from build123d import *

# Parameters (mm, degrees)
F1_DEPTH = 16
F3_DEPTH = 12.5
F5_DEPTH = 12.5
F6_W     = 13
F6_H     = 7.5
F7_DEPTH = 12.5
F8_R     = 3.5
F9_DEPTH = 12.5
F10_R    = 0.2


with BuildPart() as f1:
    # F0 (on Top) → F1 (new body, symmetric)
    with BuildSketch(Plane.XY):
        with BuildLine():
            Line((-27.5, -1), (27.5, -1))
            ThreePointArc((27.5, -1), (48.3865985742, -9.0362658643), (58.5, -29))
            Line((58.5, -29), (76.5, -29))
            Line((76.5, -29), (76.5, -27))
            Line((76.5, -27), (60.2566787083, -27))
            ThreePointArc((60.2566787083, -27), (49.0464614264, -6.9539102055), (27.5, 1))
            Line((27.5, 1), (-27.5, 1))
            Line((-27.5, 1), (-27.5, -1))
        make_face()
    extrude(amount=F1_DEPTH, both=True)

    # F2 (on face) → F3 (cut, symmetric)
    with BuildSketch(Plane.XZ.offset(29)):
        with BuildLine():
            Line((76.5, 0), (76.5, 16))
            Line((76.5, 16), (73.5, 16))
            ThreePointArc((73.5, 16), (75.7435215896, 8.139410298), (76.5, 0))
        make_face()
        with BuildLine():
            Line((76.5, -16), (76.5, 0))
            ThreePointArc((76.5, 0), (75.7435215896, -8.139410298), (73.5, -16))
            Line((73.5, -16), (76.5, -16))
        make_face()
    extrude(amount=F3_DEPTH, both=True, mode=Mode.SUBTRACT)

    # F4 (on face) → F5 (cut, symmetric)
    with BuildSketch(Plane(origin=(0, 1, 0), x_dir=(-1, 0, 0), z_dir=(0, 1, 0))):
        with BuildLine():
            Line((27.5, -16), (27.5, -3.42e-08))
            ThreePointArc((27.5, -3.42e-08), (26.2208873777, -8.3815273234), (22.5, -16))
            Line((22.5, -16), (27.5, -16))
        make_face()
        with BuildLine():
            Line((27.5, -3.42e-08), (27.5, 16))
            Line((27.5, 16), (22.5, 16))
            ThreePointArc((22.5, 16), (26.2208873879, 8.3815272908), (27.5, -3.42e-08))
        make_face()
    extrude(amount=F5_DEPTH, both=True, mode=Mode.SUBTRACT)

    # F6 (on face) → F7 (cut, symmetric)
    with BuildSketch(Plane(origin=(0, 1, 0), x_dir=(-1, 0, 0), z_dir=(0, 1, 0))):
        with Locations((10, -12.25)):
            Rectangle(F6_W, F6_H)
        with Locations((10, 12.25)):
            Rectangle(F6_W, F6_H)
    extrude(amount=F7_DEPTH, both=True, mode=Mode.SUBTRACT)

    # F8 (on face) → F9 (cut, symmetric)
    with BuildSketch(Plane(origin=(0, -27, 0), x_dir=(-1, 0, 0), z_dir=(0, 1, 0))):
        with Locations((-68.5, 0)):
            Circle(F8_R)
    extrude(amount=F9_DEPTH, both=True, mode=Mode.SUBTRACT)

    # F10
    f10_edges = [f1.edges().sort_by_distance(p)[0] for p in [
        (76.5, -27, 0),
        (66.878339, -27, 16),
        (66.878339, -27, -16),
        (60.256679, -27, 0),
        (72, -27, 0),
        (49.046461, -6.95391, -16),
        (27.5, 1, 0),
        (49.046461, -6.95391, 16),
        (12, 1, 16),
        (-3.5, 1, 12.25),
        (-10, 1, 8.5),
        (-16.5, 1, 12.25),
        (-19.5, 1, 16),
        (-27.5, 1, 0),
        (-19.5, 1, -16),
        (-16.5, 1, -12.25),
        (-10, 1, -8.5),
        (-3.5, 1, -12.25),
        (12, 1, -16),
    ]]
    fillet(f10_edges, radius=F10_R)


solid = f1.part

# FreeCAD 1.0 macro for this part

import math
import FreeCAD as App
import Part
import Sketcher
from FreeCAD import Vector
Q = App.Units.Quantity


def edges_at(feature, points):
    """Names of the edges that pass closest to the given points."""
    edges = feature.Shape.Edges
    near = lambda p: min(range(len(edges)), key=lambda i: edges[i].distToShape(Part.Vertex(*p))[0])
    return sorted({f"Edge{near(p) + 1}" for p in points})


def add_polygon(sketch, points):
    """Adds a closed chain of lines whose ends are joined by coincident constraints."""
    first, n = sketch.GeometryCount, len(points)
    for a, b in zip(points, points[1:] + points[:1]):
        sketch.addGeometry(Part.LineSegment(App.Vector(*a, 0), App.Vector(*b, 0)), False)
    for i in range(n):
        sketch.addConstraint(Sketcher.Constraint("Coincident", first + i, 2, first + (i + 1) % n, 1))

doc = App.newDocument("Part")
params = doc.addObject("Spreadsheet::Sheet", "Params")
for row, (alias, value) in enumerate([
    ("sketch1_width", "55 mm"),
    ("sketch1_width2", "18 mm"),
    ("sketch1_height", "2 mm"),
    ("sketch1_width3", "31 mm"),
    ("pad1_length", "32 mm"),
    ("sketch2_width", "3 mm"),
    ("sketch2_height", "16 mm"),
    ("pocket1_length", "25 mm"),
    ("sketch3_radius", "28.1 mm"),
    ("sketch3_width", "5 mm"),
    ("pocket2_length", "25 mm"),
    ("sketch4_width", "13 mm"),
    ("sketch4_height", "7.5 mm"),
    ("pocket3_length", "25 mm"),
    ("sketch5_diameter", "7 mm"),
    ("pocket4_length", "25 mm"),
    ("fillet_radius", "0.2 mm"),
], start=1):
    params.set(f"A{row}", alias)
    params.set(f"B{row}", "=" + value)
    params.setAlias(f"B{row}", alias)

body = doc.addObject("PartDesign::Body", "Body")

# Sketch on XY plane
sketch1 = doc.addObject("Sketcher::SketchObject", "Sketch")
body.addObject(sketch1)
sketch1.AttachmentSupport = (doc.XY_Plane, [""])
sketch1.MapMode = "FlatFace"
sketch1.addGeometry(Part.LineSegment(Vector(-27.5, -1, 0), Vector(27.5, -1, 0)), False)
sketch1.addGeometry(Part.ArcOfCircle(Part.Circle(Vector(27.5, -32.2, 0), Vector(0, 0, 1), 31.2), math.radians(6), math.radians(90)), False)
sketch1.addGeometry(Part.LineSegment(Vector(58.5, -29, 0), Vector(76.5, -29, 0)), False)
sketch1.addGeometry(Part.LineSegment(Vector(76.5, -29, 0), Vector(76.5, -27, 0)), False)
sketch1.addGeometry(Part.LineSegment(Vector(76.5, -27, 0), Vector(60.3, -27, 0)), False)
sketch1.addGeometry(Part.ArcOfCircle(Part.Circle(Vector(27.5, -32.2, 0), Vector(0, 0, 1), 33.2), math.radians(9), math.radians(90)), False)
sketch1.addGeometry(Part.LineSegment(Vector(27.5, 1, 0), Vector(-27.5, 1, 0)), False)
sketch1.addGeometry(Part.LineSegment(Vector(-27.5, 1, 0), Vector(-27.5, -1, 0)), False)
sketch1.addConstraint(Sketcher.Constraint("Tangent", 0, 2, 1, 2))
sketch1.addConstraint(Sketcher.Constraint("Coincident", 1, 1, 2, 1))
sketch1.addConstraint(Sketcher.Constraint("Coincident", 2, 2, 3, 1))
sketch1.addConstraint(Sketcher.Constraint("Coincident", 3, 2, 4, 1))
sketch1.addConstraint(Sketcher.Constraint("Coincident", 4, 2, 5, 1))
sketch1.addConstraint(Sketcher.Constraint("Tangent", 5, 2, 6, 1))
sketch1.addConstraint(Sketcher.Constraint("Coincident", 6, 2, 7, 1))
sketch1.addConstraint(Sketcher.Constraint("Coincident", 7, 2, 0, 1))
sketch1.addConstraint(Sketcher.Constraint("Horizontal", 0))
sketch1.addConstraint(Sketcher.Constraint("Horizontal", 2))
sketch1.addConstraint(Sketcher.Constraint("Vertical", 3))
sketch1.addConstraint(Sketcher.Constraint("Horizontal", 4))
sketch1.addConstraint(Sketcher.Constraint("Horizontal", 6))
sketch1.addConstraint(Sketcher.Constraint("Vertical", 7))
sketch1.addConstraint(Sketcher.Constraint("Coincident", 5, 3, 1, 3))
sketch1.addConstraint(Sketcher.Constraint("Symmetric", 0, 2, 6, 2, -1, 1))
sketch1.addConstraint(Sketcher.Constraint("Equal", 3, 7))
sketch1.addConstraint(Sketcher.Constraint("DistanceX", 0, 1, 0, 2, Q("55 mm")))
sketch1.addConstraint(Sketcher.Constraint("DistanceX", 2, 1, 2, 2, Q("18 mm")))
sketch1.addConstraint(Sketcher.Constraint("DistanceY", 3, 1, 3, 2, Q("2 mm")))
sketch1.addConstraint(Sketcher.Constraint("DistanceY", 1, 1, -1, 1, Q("29 mm")))
sketch1.addConstraint(Sketcher.Constraint("DistanceX", 1, 3, 1, 1, Q("31 mm")))
sketch1.setExpression("Constraints[17]", "Params.sketch1_width")
sketch1.setExpression("Constraints[18]", "Params.sketch1_width2")
sketch1.setExpression("Constraints[19]", "Params.sketch1_height")
sketch1.setExpression("Constraints[21]", "Params.sketch1_width3")
pad1 = doc.addObject("PartDesign::Pad", "Pad")
body.addObject(pad1)
pad1.Profile = sketch1
pad1.setExpression("Length", "Params.pad1_length")
pad1.Midplane = True

# Sketch on XZ plane
sketch2 = doc.addObject("Sketcher::SketchObject", "Sketch001")
body.addObject(sketch2)
sketch2.AttachmentSupport = (doc.XZ_Plane, [""])
sketch2.MapMode = "FlatFace"
sketch2.AttachmentOffset = App.Placement(Vector(0, 0, 29), App.Rotation())
sketch2.addGeometry(Part.LineSegment(Vector(76.5, 0, 0), Vector(76.5, 16, 0)), False)
sketch2.addGeometry(Part.LineSegment(Vector(76.5, 16, 0), Vector(73.5, 16, 0)), False)
sketch2.addGeometry(Part.ArcOfCircle(Part.Circle(Vector(32.3, 0, 0), Vector(0, 0, 1), 44.2), math.radians(0), math.radians(21)), False)
sketch2.addGeometry(Part.LineSegment(Vector(76.5, -16, 0), Vector(76.5, 0, 0)), False)
sketch2.addGeometry(Part.ArcOfCircle(Part.Circle(Vector(32.3, 0, 0), Vector(0, 0, 1), 44.2), math.radians(-21), math.radians(0)), False)
sketch2.addGeometry(Part.LineSegment(Vector(73.5, -16, 0), Vector(76.5, -16, 0)), False)
sketch2.addConstraint(Sketcher.Constraint("Coincident", 0, 2, 1, 1))
sketch2.addConstraint(Sketcher.Constraint("Coincident", 1, 2, 2, 2))
sketch2.addConstraint(Sketcher.Constraint("Tangent", 2, 1, 0, 1))
sketch2.addConstraint(Sketcher.Constraint("Tangent", 3, 2, 4, 2))
sketch2.addConstraint(Sketcher.Constraint("Coincident", 4, 1, 5, 1))
sketch2.addConstraint(Sketcher.Constraint("Coincident", 5, 2, 3, 1))
sketch2.addConstraint(Sketcher.Constraint("Vertical", 0))
sketch2.addConstraint(Sketcher.Constraint("Horizontal", 1))
sketch2.addConstraint(Sketcher.Constraint("Vertical", 3))
sketch2.addConstraint(Sketcher.Constraint("Horizontal", 5))
sketch2.addConstraint(Sketcher.Constraint("Coincident", 4, 3, 2, 3))
sketch2.addConstraint(Sketcher.Constraint("Equal", 2, 4))
sketch2.addConstraint(Sketcher.Constraint("Symmetric", 1, 2, 4, 1, -1))
sketch2.addConstraint(Sketcher.Constraint("DistanceX", 1, 2, 1, 1, Q("3 mm")))
sketch2.addConstraint(Sketcher.Constraint("DistanceY", 0, 1, 0, 2, Q("16 mm")))
sketch2.addConstraint(Sketcher.Constraint("DistanceX", -1, 1, 0, 2, Q("76.5 mm")))
sketch2.setExpression("Constraints[13]", "Params.sketch2_width")
sketch2.setExpression("Constraints[14]", "Params.sketch2_height")
pocket1 = doc.addObject("PartDesign::Pocket", "Pocket")
body.addObject(pocket1)
pocket1.Profile = sketch2
pocket1.setExpression("Length", "Params.pocket1_length")
pocket1.Midplane = True

# Sketch on XZ plane
sketch3 = doc.addObject("Sketcher::SketchObject", "Sketch002")
body.addObject(sketch3)
sketch3.AttachmentSupport = (doc.XZ_Plane, [""])
sketch3.MapMode = "FlatFace"
sketch3.AttachmentOffset = App.Placement(Vector(0, 0, -1), App.Rotation())
sketch3.addGeometry(Part.LineSegment(Vector(-28, -16, 0), Vector(-28, 0, 0)), False)
sketch3.addGeometry(Part.ArcOfCircle(Part.Circle(Vector(1, 0, 0), Vector(0, 0, 1), 28), math.radians(-180), math.radians(-145)), False)
sketch3.addGeometry(Part.LineSegment(Vector(-22, -16, 0), Vector(-28, -16, 0)), False)
sketch3.addGeometry(Part.LineSegment(Vector(-28, 0, 0), Vector(-28, 16, 0)), False)
sketch3.addGeometry(Part.LineSegment(Vector(-28, 16, 0), Vector(-22, 16, 0)), False)
sketch3.addGeometry(Part.ArcOfCircle(Part.Circle(Vector(1, 0, 0), Vector(0, 0, 1), 28), math.radians(145), math.radians(180)), False)
sketch3.addConstraint(Sketcher.Constraint("Tangent", 0, 2, 1, 1))
sketch3.addConstraint(Sketcher.Constraint("Coincident", 1, 2, 2, 1))
sketch3.addConstraint(Sketcher.Constraint("Coincident", 2, 2, 0, 1))
sketch3.addConstraint(Sketcher.Constraint("Coincident", 3, 2, 4, 1))
sketch3.addConstraint(Sketcher.Constraint("Coincident", 4, 2, 5, 1))
sketch3.addConstraint(Sketcher.Constraint("Tangent", 5, 2, 3, 1))
sketch3.addConstraint(Sketcher.Constraint("Vertical", 0))
sketch3.addConstraint(Sketcher.Constraint("Horizontal", 2))
sketch3.addConstraint(Sketcher.Constraint("Vertical", 3))
sketch3.addConstraint(Sketcher.Constraint("Horizontal", 4))
sketch3.addConstraint(Sketcher.Constraint("Coincident", 5, 3, 1, 3))
sketch3.addConstraint(Sketcher.Constraint("Equal", 1, 5))
sketch3.addConstraint(Sketcher.Constraint("Symmetric", 1, 2, 4, 2, -1))
sketch3.addConstraint(Sketcher.Constraint("Radius", 1, Q("28.1 mm")))
sketch3.addConstraint(Sketcher.Constraint("DistanceX", 2, 2, 2, 1, Q("5 mm")))
sketch3.addConstraint(Sketcher.Constraint("DistanceX", -1, 1, 1, 3, Q("0.6 mm")))
sketch3.setExpression("Constraints[13]", "Params.sketch3_radius")
sketch3.setExpression("Constraints[14]", "Params.sketch3_width")
pocket2 = doc.addObject("PartDesign::Pocket", "Pocket001")
body.addObject(pocket2)
pocket2.Profile = sketch3
pocket2.setExpression("Length", "Params.pocket2_length")
pocket2.Midplane = True

# Sketch on XZ plane
sketch4 = doc.addObject("Sketcher::SketchObject", "Sketch003")
body.addObject(sketch4)
sketch4.AttachmentSupport = (doc.XZ_Plane, [""])
sketch4.MapMode = "FlatFace"
sketch4.AttachmentOffset = App.Placement(Vector(0, 0, -1), App.Rotation())
add_polygon(sketch4, [(-4, -8), (-4, -16), (-16, -16), (-16, -8)])  # lines 0-3
add_polygon(sketch4, [(-4, 16), (-4, 8), (-16, 8), (-16, 16)])  # lines 4-7
sketch4.addConstraint(Sketcher.Constraint("Vertical", 0))
sketch4.addConstraint(Sketcher.Constraint("Horizontal", 1))
sketch4.addConstraint(Sketcher.Constraint("Vertical", 2))
sketch4.addConstraint(Sketcher.Constraint("Horizontal", 3))
sketch4.addConstraint(Sketcher.Constraint("Vertical", 4))
sketch4.addConstraint(Sketcher.Constraint("Horizontal", 5))
sketch4.addConstraint(Sketcher.Constraint("Vertical", 6))
sketch4.addConstraint(Sketcher.Constraint("Horizontal", 7))
sketch4.addConstraint(Sketcher.Constraint("Symmetric", 3, 2, 4, 2, -1))
sketch4.addConstraint(Sketcher.Constraint("Symmetric", 1, 2, 6, 2, -1))
sketch4.addConstraint(Sketcher.Constraint("DistanceX", 1, 2, 1, 1, Q("13 mm")))
sketch4.addConstraint(Sketcher.Constraint("DistanceY", 0, 2, 0, 1, Q("7.5 mm")))
sketch4.addConstraint(Sketcher.Constraint("DistanceY", 0, 2, -1, 1, Q("16 mm")))
sketch4.addConstraint(Sketcher.Constraint("DistanceX", 0, 2, -1, 1, Q("3.5 mm")))
sketch4.setExpression("Constraints[18]", "Params.sketch4_width")
sketch4.setExpression("Constraints[19]", "Params.sketch4_height")
pocket3 = doc.addObject("PartDesign::Pocket", "Pocket002")
body.addObject(pocket3)
pocket3.Profile = sketch4
pocket3.setExpression("Length", "Params.pocket3_length")
pocket3.Midplane = True

# Sketch on XZ plane
sketch5 = doc.addObject("Sketcher::SketchObject", "Sketch004")
body.addObject(sketch5)
sketch5.AttachmentSupport = (doc.XZ_Plane, [""])
sketch5.MapMode = "FlatFace"
sketch5.AttachmentOffset = App.Placement(Vector(0, 0, 27), App.Rotation())
sketch5.addGeometry(Part.Circle(Vector(68.5, 0, 0), Vector(0, 0, 1), 3.5), False)
sketch5.addConstraint(Sketcher.Constraint("PointOnObject", 0, 3, -1))
sketch5.addConstraint(Sketcher.Constraint("Diameter", 0, Q("7 mm")))
sketch5.addConstraint(Sketcher.Constraint("DistanceX", -1, 1, 0, 3, Q("68.5 mm")))
sketch5.setExpression("Constraints[1]", "Params.sketch5_diameter")
pocket4 = doc.addObject("PartDesign::Pocket", "Pocket003")
body.addObject(pocket4)
pocket4.Profile = sketch5
pocket4.setExpression("Length", "Params.pocket4_length")
pocket4.Midplane = True
doc.recompute()

fillet = doc.addObject("PartDesign::Fillet", "Fillet")
body.addObject(fillet)
fillet.Base = (pocket4, edges_at(pocket4, [
    (75.744, -27, 8.139),
    (66.878, -27, 16),
    (66.878, -27, -16),
    (60.257, -27, 0),
    (72, -27, 0),
    (49.046, -6.954, -16),
    (27.5, 1, 0),
    (49.046, -6.954, 16),
    (12, 1, 16),
    (-3.5, 1, 12.25),
    (-10, 1, 8.5),
    (-16.5, 1, 12.25),
    (-19.5, 1, 16),
    (-26.221, 1, -8.382),
    (-19.5, 1, -16),
    (-16.5, 1, -12.25),
    (-10, 1, -8.5),
    (-3.5, 1, -12.25),
    (12, 1, -16),
]))
fillet.setExpression("Radius", "Params.fillet_radius")

doc.recompute()
